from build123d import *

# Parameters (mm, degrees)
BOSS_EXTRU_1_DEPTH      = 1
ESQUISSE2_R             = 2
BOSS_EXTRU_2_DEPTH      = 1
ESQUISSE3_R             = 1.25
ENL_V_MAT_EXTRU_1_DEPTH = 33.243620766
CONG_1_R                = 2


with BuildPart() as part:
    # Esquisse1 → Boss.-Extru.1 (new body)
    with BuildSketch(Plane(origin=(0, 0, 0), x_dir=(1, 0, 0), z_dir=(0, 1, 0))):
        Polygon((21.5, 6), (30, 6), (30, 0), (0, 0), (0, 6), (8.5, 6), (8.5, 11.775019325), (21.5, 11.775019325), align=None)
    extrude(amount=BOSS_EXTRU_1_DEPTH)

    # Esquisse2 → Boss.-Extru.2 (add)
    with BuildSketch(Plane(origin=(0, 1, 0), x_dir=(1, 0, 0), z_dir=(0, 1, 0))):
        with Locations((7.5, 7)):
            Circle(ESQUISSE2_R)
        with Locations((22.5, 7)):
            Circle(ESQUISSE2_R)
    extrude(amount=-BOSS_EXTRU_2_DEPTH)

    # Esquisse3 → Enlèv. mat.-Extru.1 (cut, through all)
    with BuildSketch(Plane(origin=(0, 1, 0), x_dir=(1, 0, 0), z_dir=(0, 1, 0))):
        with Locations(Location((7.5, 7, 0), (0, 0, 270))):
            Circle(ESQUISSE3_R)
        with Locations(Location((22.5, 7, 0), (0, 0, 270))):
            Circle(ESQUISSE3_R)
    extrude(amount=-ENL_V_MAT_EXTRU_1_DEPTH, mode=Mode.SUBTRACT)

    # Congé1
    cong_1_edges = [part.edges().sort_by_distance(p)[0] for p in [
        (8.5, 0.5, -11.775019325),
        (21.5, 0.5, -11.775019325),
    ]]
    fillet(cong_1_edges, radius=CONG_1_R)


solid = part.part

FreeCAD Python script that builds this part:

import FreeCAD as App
import Part
import Sketcher


def edges_at(feature, points):
    """Names of the edges that pass closest to the given points."""
    edges = feature.Shape.Edges
    near = lambda p: min(range(len(edges)), key=lambda i: edges[i].distToShape(Part.Vertex(*p))[0])
    return sorted({f"Edge{near(p) + 1}" for p in points})


def add_polygon(sketch, points):
    """Adds a closed chain of lines whose ends are joined by coincident constraints."""
    first, n = sketch.GeometryCount, len(points)
    for a, b in zip(points, points[1:] + points[:1]):
        sketch.addGeometry(Part.LineSegment(App.Vector(*a, 0), App.Vector(*b, 0)), False)
    for i in range(n):
        sketch.addConstraint(Sketcher.Constraint("Coincident", first + i, 2, first + (i + 1) % n, 1))

doc = App.newDocument("Part")
body = doc.addObject("PartDesign::Body", "Body")

# Sketch on XZ plane
sketch1 = body.newObject("Sketcher::SketchObject", "Sketch")
sketch1.AttachmentSupport = (doc.getObject("XZ_Plane"), [""])
sketch1.MapMode = "FlatFace"
add_polygon(sketch1, [(30, -6), (21.5, -6), (21.5, -11.775019), (8.5, -11.775019), (8.5, -6), (0, -6), (0, 0), (30, 0)])  # lines 0-7
sketch1.addConstraint(Sketcher.Constraint("Horizontal", 0))
sketch1.addConstraint(Sketcher.Constraint("Vertical", 1))
sketch1.addConstraint(Sketcher.Constraint("Horizontal", 2))
sketch1.addConstraint(Sketcher.Constraint("Vertical", 3))
sketch1.addConstraint(Sketcher.Constraint("Horizontal", 4))
sketch1.addConstraint(Sketcher.Constraint("Vertical", 5))
sketch1.addConstraint(Sketcher.Constraint("Horizontal", 6))
sketch1.addConstraint(Sketcher.Constraint("Vertical", 7))
sketch1.addConstraint(Sketcher.Constraint("Coincident", 5, 2, -1, 1))
sketch1.addConstraint(Sketcher.Constraint("Horizontal", 0, 2, 3, 2))
sketch1.addConstraint(Sketcher.Constraint("Equal", 0, 4))
sketch1.addConstraint(Sketcher.Constraint("DistanceX", 2, 2, 2, 1, 13.0))
sketch1.addConstraint(Sketcher.Constraint("DistanceX", 6, 1, 6, 2, 30.0))
sketch1.addConstraint(Sketcher.Constraint("DistanceY", 5, 1, 5, 2, 6.0))
sketch1.addConstraint(Sketcher.Constraint("DistanceY", 1, 2, 1, 1, 5.775019))
pad1 = body.newObject("PartDesign::Pad", "Pad")
pad1.Profile = sketch1
pad1.Length = 1
pad1.Reversed = True

# Sketch on XZ plane
sketch2 = body.newObject("Sketcher::SketchObject", "Sketch001")
sketch2.AttachmentSupport = (doc.getObject("XZ_Plane"), [""])
sketch2.MapMode = "FlatFace"
sketch2.AttachmentOffset = App.Placement(App.Vector(0, 0, -1), App.Rotation())
sketch2.addGeometry(Part.Circle(App.Vector(7.5, -7, 0), App.Vector(0, 0, 1), 2), False)
sketch2.addGeometry(Part.Circle(App.Vector(22.5, -7, 0), App.Vector(0, 0, 1), 2), False)
sketch2.addConstraint(Sketcher.Constraint("Equal", 0, 1))
sketch2.addConstraint(Sketcher.Constraint("Horizontal", 0, 3, 1, 3))
sketch2.addConstraint(Sketcher.Constraint("Diameter", 0, 4.0))
sketch2.addConstraint(Sketcher.Constraint("DistanceY", 0, 3, -1, 1, 7.0))
sketch2.addConstraint(Sketcher.Constraint("DistanceX", 0, 3, 1, 3, 15.0))
sketch2.addConstraint(Sketcher.Constraint("DistanceX", -1, 1, 0, 3, 7.5))
pad2 = body.newObject("PartDesign::Pad", "Pad001")
pad2.Profile = sketch2
pad2.Length = 1

# Sketch on XZ plane
sketch3 = body.newObject("Sketcher::SketchObject", "Sketch002")
sketch3.AttachmentSupport = (doc.getObject("XZ_Plane"), [""])
sketch3.MapMode = "FlatFace"
sketch3.AttachmentOffset = App.Placement(App.Vector(0, 0, -1), App.Rotation())
sketch3.addGeometry(Part.Circle(App.Vector(7.5, -7, 0), App.Vector(0, 0, 1), 1.25), False)
sketch3.addGeometry(Part.Circle(App.Vector(22.5, -7, 0), App.Vector(0, 0, 1), 1.25), False)
sketch3.addConstraint(Sketcher.Constraint("Equal", 0, 1))
sketch3.addConstraint(Sketcher.Constraint("Horizontal", 0, 3, 1, 3))
sketch3.addConstraint(Sketcher.Constraint("Diameter", 0, 2.5))
sketch3.addConstraint(Sketcher.Constraint("DistanceY", 0, 3, -1, 1, 7.0))
sketch3.addConstraint(Sketcher.Constraint("DistanceX", 0, 3, 1, 3, 15.0))
sketch3.addConstraint(Sketcher.Constraint("DistanceX", -1, 1, 0, 3, 7.5))
pocket1 = body.newObject("PartDesign::Pocket", "Pocket")
pocket1.Profile = sketch3
pocket1.Type = "ThroughAll"
pocket1.Reversed = True
doc.recompute()

fillet = body.newObject("PartDesign::Fillet", "Fillet")
fillet.Base = (pocket1, edges_at(pocket1, [(8.5, 0.5, -11.775), (21.5, 0.5, -11.775)]))
fillet.Radius = 2

doc.recompute()
